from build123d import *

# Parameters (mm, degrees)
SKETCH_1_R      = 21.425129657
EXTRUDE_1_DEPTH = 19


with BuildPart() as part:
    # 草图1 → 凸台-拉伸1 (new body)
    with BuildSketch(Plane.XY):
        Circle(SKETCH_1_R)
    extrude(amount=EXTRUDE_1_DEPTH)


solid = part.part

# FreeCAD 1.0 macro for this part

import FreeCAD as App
import Part
import Sketcher
Q = App.Units.Quantity

doc = App.newDocument("Part")
params = doc.addObject("Spreadsheet::Sheet", "Params")
for row, (alias, value) in enumerate([
    ("pad1_length", "19 mm"),
], start=1):
    params.set(f"A{row}", alias)
    params.set(f"B{row}", "=" + value)
    params.setAlias(f"B{row}", alias)

body = doc.addObject("PartDesign::Body", "Body")

sketch1 = doc.addObject("Sketcher::SketchObject", "Sketch")
body.addObject(sketch1)
sketch1.AttachmentSupport = (doc.XY_Plane, [""])
sketch1.MapMode = "FlatFace"
sketch1.addGeometry(Part.Circle(App.Vector(0, 0, 0), App.Vector(0, 0, 1), 21), False)
sketch1.addConstraint([
    Sketcher.Constraint("Coincident", 0, 3, -1, 1),
    Sketcher.Constraint("Diameter", 0, Q("42.850259 mm")),
])
pad1 = doc.addObject("PartDesign::Pad", "Pad")
body.addObject(pad1)
pad1.Profile = sketch1
pad1.setExpression("Length", "Params.pad1_length")

doc.recompute()
